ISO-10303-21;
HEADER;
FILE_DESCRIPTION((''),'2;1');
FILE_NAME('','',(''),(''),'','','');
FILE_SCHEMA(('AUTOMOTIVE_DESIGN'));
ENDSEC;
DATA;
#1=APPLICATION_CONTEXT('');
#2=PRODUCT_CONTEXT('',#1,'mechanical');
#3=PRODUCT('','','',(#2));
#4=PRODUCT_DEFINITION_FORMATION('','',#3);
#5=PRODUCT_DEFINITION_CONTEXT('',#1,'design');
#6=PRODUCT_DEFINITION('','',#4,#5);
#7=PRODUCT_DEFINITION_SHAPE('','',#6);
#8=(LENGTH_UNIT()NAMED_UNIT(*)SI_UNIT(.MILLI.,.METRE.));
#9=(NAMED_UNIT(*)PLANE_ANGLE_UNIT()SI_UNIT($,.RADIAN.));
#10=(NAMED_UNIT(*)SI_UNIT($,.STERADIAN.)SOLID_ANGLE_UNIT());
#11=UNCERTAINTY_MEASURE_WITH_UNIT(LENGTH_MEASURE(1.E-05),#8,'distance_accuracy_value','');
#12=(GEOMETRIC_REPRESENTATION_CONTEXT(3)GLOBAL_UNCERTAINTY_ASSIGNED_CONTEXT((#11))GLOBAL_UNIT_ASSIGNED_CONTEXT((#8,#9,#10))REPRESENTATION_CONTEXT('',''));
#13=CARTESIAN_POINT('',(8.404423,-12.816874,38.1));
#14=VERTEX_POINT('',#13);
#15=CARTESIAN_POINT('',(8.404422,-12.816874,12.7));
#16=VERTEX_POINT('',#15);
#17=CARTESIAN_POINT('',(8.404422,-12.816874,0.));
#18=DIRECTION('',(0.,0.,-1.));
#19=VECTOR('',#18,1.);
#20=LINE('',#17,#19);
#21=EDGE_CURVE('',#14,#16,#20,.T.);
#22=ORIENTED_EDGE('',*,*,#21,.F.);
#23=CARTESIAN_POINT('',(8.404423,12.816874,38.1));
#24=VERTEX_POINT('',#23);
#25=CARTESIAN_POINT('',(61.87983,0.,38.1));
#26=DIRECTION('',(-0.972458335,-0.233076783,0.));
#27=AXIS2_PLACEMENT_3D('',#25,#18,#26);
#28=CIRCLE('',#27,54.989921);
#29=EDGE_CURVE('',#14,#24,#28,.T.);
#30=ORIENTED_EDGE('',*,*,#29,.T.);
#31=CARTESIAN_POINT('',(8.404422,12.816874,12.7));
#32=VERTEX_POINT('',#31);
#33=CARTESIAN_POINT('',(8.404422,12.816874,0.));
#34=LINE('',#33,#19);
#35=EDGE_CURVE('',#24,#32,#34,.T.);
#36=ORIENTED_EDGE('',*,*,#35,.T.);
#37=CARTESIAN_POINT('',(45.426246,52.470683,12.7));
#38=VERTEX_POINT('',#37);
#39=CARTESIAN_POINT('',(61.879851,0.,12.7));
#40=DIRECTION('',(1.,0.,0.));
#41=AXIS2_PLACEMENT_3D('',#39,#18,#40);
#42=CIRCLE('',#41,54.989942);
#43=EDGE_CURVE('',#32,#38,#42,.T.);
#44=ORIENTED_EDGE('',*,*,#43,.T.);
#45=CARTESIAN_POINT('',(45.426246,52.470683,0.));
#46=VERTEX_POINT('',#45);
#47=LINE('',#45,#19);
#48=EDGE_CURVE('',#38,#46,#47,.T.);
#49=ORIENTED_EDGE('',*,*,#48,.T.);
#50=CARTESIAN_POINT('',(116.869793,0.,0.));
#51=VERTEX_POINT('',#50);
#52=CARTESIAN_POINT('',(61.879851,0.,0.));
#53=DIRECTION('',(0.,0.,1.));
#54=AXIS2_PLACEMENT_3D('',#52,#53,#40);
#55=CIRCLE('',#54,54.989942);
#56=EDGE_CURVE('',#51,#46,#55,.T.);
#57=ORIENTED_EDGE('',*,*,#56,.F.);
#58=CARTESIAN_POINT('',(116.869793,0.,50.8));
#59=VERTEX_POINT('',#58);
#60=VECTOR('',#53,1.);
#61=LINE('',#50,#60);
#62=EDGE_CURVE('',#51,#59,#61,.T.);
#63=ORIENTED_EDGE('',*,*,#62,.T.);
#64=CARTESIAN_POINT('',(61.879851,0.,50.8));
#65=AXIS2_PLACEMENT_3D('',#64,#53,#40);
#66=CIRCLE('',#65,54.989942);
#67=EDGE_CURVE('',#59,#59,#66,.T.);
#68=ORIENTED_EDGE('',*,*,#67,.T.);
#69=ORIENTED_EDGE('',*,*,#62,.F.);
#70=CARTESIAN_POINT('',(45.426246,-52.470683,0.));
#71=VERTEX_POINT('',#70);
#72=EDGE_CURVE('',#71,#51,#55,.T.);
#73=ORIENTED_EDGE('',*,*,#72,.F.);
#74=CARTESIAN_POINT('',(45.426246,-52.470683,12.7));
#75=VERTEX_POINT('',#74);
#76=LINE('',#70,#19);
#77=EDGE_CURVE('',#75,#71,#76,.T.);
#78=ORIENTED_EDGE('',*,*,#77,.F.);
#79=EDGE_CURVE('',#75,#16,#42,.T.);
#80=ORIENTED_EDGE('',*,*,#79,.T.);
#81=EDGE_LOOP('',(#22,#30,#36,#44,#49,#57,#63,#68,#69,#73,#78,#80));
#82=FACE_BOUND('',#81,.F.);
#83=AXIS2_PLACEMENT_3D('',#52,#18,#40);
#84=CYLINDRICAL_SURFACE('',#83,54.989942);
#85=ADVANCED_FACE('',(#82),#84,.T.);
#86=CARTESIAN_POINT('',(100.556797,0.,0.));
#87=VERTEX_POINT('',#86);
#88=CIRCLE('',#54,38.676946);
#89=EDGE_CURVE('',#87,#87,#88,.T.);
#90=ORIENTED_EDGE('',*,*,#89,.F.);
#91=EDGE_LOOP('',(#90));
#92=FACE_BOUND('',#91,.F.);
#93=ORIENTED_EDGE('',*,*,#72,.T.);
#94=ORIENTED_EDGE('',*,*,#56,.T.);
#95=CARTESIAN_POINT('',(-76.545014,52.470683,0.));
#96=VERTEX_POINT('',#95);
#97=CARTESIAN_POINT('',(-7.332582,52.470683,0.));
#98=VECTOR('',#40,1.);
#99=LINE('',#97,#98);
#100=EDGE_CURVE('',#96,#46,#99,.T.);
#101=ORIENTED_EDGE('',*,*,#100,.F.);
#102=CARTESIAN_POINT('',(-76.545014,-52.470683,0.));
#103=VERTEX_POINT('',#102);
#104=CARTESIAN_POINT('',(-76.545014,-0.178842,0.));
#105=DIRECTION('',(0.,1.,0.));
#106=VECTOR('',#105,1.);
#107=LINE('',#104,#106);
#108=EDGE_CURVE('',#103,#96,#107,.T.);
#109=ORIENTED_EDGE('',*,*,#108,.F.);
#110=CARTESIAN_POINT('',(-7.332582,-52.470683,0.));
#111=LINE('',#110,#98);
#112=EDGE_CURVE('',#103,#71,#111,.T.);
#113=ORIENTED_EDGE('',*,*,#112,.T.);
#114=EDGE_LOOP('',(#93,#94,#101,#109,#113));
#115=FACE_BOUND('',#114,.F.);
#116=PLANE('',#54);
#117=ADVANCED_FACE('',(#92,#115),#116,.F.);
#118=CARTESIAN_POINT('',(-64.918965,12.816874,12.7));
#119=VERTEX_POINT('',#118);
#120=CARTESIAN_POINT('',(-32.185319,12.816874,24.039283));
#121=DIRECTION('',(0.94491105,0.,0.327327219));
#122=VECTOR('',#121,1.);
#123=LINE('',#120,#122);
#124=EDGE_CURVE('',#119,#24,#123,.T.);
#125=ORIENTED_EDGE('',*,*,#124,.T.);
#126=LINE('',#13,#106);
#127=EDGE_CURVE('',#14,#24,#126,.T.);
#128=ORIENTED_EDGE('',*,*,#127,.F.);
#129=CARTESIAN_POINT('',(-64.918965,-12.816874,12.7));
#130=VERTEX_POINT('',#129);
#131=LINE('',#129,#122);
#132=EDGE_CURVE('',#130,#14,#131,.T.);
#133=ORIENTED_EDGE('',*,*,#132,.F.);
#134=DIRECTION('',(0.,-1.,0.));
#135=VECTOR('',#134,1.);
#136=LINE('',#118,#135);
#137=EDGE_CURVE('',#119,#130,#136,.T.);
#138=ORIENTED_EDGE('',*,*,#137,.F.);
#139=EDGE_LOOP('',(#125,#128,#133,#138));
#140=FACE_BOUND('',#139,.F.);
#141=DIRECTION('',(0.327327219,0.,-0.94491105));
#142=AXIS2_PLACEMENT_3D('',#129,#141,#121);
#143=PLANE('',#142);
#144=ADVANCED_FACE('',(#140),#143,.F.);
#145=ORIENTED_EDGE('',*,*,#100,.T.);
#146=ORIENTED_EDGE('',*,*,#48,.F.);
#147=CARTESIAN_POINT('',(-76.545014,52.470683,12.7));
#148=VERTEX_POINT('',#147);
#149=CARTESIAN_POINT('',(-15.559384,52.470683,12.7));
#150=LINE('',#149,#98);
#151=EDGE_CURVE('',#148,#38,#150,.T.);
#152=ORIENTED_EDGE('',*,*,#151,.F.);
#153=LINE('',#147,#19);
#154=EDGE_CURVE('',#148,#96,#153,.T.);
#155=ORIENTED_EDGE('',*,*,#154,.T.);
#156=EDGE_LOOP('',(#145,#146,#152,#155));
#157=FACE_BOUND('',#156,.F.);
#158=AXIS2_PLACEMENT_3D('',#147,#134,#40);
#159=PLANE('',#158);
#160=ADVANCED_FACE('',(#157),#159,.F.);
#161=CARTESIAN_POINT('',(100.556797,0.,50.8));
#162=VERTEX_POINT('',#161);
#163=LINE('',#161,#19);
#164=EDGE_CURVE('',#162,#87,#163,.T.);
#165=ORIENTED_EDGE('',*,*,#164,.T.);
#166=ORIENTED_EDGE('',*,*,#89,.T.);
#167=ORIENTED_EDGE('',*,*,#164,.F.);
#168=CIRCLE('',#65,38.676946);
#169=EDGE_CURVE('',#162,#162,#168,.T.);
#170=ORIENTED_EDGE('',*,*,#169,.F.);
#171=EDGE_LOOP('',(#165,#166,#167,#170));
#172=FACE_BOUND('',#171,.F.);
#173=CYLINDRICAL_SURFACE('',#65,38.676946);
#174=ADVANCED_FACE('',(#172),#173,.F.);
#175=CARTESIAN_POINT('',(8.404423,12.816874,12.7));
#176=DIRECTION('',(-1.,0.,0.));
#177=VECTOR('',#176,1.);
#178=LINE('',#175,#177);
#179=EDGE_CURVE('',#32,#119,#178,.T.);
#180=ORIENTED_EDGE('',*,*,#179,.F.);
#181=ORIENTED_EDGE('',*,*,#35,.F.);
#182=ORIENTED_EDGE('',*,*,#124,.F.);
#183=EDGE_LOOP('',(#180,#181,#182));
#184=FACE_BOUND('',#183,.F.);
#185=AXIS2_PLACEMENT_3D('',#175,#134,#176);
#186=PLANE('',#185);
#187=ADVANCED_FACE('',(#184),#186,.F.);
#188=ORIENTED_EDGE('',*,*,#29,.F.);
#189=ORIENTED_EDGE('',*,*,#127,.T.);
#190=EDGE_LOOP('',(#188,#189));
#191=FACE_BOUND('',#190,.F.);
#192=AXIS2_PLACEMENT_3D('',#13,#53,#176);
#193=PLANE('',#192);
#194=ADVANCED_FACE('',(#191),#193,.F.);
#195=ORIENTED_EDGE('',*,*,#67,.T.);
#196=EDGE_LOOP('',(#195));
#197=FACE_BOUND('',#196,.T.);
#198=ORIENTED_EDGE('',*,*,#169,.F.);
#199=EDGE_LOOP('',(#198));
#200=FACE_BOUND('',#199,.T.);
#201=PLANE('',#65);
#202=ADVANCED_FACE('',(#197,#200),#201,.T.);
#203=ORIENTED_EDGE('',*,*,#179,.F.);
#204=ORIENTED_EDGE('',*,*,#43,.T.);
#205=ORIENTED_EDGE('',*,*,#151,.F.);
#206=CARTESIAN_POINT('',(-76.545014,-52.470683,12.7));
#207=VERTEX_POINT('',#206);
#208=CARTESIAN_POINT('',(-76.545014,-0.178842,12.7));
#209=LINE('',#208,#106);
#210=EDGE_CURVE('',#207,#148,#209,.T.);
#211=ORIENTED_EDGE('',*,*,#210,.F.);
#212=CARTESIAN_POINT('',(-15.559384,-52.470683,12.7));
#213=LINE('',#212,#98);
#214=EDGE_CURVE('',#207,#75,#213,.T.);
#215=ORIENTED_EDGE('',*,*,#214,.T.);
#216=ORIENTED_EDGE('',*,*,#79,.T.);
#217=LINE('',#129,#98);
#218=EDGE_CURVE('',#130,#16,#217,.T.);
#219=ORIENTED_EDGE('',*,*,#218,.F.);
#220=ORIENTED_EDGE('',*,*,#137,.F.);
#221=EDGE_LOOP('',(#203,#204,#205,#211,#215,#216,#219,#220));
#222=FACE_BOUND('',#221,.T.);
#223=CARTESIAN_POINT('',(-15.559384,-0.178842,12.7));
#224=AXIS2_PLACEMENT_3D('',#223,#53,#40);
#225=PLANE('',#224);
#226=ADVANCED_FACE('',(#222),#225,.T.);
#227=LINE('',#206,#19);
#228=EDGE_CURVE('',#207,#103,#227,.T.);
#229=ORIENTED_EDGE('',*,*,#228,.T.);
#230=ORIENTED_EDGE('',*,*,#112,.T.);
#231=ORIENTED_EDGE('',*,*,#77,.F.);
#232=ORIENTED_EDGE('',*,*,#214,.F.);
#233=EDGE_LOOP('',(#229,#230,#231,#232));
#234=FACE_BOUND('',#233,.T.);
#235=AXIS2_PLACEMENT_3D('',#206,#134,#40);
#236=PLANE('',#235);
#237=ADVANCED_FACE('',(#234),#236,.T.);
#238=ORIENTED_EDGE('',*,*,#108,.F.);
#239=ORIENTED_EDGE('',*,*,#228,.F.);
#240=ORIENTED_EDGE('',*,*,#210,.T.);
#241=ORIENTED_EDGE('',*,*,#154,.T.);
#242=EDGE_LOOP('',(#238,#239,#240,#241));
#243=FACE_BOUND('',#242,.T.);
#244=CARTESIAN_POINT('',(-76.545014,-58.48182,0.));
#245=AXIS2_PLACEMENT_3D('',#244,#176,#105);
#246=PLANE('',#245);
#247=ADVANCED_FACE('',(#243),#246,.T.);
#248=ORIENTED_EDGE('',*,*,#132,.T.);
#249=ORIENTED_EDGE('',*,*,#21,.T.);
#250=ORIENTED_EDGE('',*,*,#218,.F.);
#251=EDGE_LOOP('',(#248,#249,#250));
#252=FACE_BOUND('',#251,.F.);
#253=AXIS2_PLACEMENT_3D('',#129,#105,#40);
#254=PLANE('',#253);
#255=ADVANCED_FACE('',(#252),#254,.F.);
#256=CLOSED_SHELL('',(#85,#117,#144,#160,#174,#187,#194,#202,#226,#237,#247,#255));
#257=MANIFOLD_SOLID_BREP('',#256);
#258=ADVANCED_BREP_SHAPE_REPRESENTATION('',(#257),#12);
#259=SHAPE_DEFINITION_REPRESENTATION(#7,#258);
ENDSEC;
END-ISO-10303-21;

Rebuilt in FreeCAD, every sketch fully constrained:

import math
import FreeCAD as App
import Part
import Sketcher
Q = App.Units.Quantity


def add_polygon(sketch, points):
    """Adds a closed chain of lines whose ends are joined by coincident constraints."""
    first, n = sketch.GeometryCount, len(points)
    for a, b in zip(points, points[1:] + points[:1]):
        sketch.addGeometry(Part.LineSegment(App.Vector(*a, 0), App.Vector(*b, 0)), False)
    for i in range(n):
        sketch.addConstraint(Sketcher.Constraint("Coincident", first + i, 2, first + (i + 1) % n, 1))

doc = App.newDocument("Part")
body = doc.addObject("PartDesign::Body", "Body")

# Sketch on XY plane
sketch1 = body.newObject("Sketcher::SketchObject", "Sketch")
sketch1.AttachmentSupport = (doc.getObject("XY_Plane"), [""])
sketch1.MapMode = "FlatFace"
add_polygon(sketch1, [(-77, 58), (-77, -58), (45, -58), (45, 58)])  # lines 0-3
sketch1.addConstraint(Sketcher.Constraint("Vertical", 0))
sketch1.addConstraint(Sketcher.Constraint("Horizontal", 1))
sketch1.addConstraint(Sketcher.Constraint("Vertical", 2))
sketch1.addConstraint(Sketcher.Constraint("Horizontal", 3))
sketch1.addConstraint(Sketcher.Constraint("DistanceX", 1, 1, 1, 2, 121.971261))
sketch1.addConstraint(Sketcher.Constraint("DistanceY", 0, 2, 0, 1, 116.605956))
sketch1.addConstraint(Sketcher.Constraint("DistanceY", 0, 2, -1, 1, 58.48182))
sketch1.addConstraint(Sketcher.Constraint("DistanceX", 0, 2, -1, 1, 76.545014))
pad1 = body.newObject("PartDesign::Pad", "Pad")
pad1.Profile = sketch1
pad1.Length = Q("0.5 in")

# Sketch on XY plane
sketch2 = body.newObject("Sketcher::SketchObject", "Sketch001")
sketch2.AttachmentSupport = (doc.getObject("XY_Plane"), [""])
sketch2.MapMode = "FlatFace"
sketch2.addGeometry(Part.Circle(App.Vector(62, 0, 0), App.Vector(0, 0, 1), 55), False)
sketch2.addConstraint(Sketcher.Constraint("PointOnObject", 0, 3, -1))
sketch2.addConstraint(Sketcher.Constraint("Diameter", 0, 109.979884))
sketch2.addConstraint(Sketcher.Constraint("DistanceX", -1, 1, 0, 3, 61.879851))
pad2 = body.newObject("PartDesign::Pad", "Pad001")
pad2.Profile = sketch2
pad2.Length = Q("2 in")

# Sketch on XY plane
sketch3 = body.newObject("Sketcher::SketchObject", "Sketch002")
sketch3.AttachmentSupport = (doc.getObject("XY_Plane"), [""])
sketch3.MapMode = "FlatFace"
sketch3.AttachmentOffset = App.Placement(App.Vector(0, 0, 2 * 25.4), App.Rotation())
sketch3.addGeometry(Part.Circle(App.Vector(62, 0, 0), App.Vector(0, 0, 1), 39), False)
sketch3.addConstraint(Sketcher.Constraint("PointOnObject", 0, 3, -1))
sketch3.addConstraint(Sketcher.Constraint("Diameter", 0, 77.353892))
sketch3.addConstraint(Sketcher.Constraint("DistanceX", -1, 1, 0, 3, 61.879851))
pocket1 = body.newObject("PartDesign::Pocket", "Pocket")
pocket1.Profile = sketch3
pocket1.Length = Q("4 in")

# Sketch on XY plane
sketch4 = body.newObject("Sketcher::SketchObject", "Sketch003")
sketch4.AttachmentSupport = (doc.getObject("XY_Plane"), [""])
sketch4.MapMode = "FlatFace"
sketch4.AttachmentOffset = App.Placement(App.Vector(0, 0, 0.5 * 25.4), App.Rotation())
sketch4.addGeometry(Part.ArcOfCircle(Part.Circle(App.Vector(62, 0, 0), App.Vector(0, 0, 1), 55), math.radians(167), math.radians(193)), False)
sketch4.addGeometry(Part.LineSegment(App.Vector(8, 13, 0), App.Vector(-65, 13, 0)), False)
sketch4.addGeometry(Part.LineSegment(App.Vector(-65, 13, 0), App.Vector(-65, -13, 0)), False)
sketch4.addGeometry(Part.LineSegment(App.Vector(-65, -13, 0), App.Vector(8, -13, 0)), False)
sketch4.addConstraint(Sketcher.Constraint("Coincident", 0, 1, 1, 1))
sketch4.addConstraint(Sketcher.Constraint("Coincident", 1, 2, 2, 1))
sketch4.addConstraint(Sketcher.Constraint("Coincident", 2, 2, 3, 1))
sketch4.addConstraint(Sketcher.Constraint("Coincident", 3, 2, 0, 2))
sketch4.addConstraint(Sketcher.Constraint("Horizontal", 1))
sketch4.addConstraint(Sketcher.Constraint("Vertical", 2))
sketch4.addConstraint(Sketcher.Constraint("Horizontal", 3))
sketch4.addConstraint(Sketcher.Constraint("Symmetric", 0, 1, 3, 2, -1))
sketch4.addConstraint(Sketcher.Constraint("Radius", 0, 54.989921))
sketch4.addConstraint(Sketcher.Constraint("DistanceY", 2, 2, 2, 1, 25.633748))
sketch4.addConstraint(Sketcher.Constraint("DistanceX", 1, 2, 1, 1, 73.323388))
sketch4.addConstraint(Sketcher.Constraint("DistanceX", -1, 1, 0, 3, 61.87983))
pad3 = body.newObject("PartDesign::Pad", "Pad002")
pad3.Profile = sketch4
pad3.Length = Q("1 in")

# Sketch on XZ plane
sketch5 = body.newObject("Sketcher::SketchObject", "Sketch004")
sketch5.AttachmentSupport = (doc.getObject("XZ_Plane"), [""])
sketch5.MapMode = "FlatFace"
sketch5.AttachmentOffset = App.Placement(App.Vector(0, 0, 12.816874), App.Rotation())
add_polygon(sketch5, [(-65, 13), (8, 38), (-65, 38)])  # lines 0-2
sketch5.addConstraint(Sketcher.Constraint("Horizontal", 1))
sketch5.addConstraint(Sketcher.Constraint("Vertical", 2))
sketch5.addConstraint(Sketcher.Constraint("DistanceY", 2, 2, 2, 1, Q("1 in")))
sketch5.addConstraint(Sketcher.Constraint("DistanceY", -1, 1, 0, 2, Q("1.5 in")))
sketch5.addConstraint(Sketcher.Constraint("Distance", 0, 77.598191))
sketch5.addConstraint(Sketcher.Constraint("DistanceX", -1, 1, 0, 2, 8.404423))
pocket2 = body.newObject("PartDesign::Pocket", "Pocket001")
pocket2.Profile = sketch5
pocket2.Length = Q("2 in")

# Sketch on XY plane
sketch6 = body.newObject("Sketcher::SketchObject", "Sketch005")
sketch6.AttachmentSupport = (doc.getObject("XY_Plane"), [""])
sketch6.MapMode = "FlatFace"
sketch6.AttachmentOffset = App.Placement(App.Vector(0, 0, 0.5 * 25.4), App.Rotation())
add_polygon(sketch6, [(-77, -52), (-77, -58), (45, -58), (45, -52)])  # lines 0-3
sketch6.addConstraint(Sketcher.Constraint("Vertical", 0))
sketch6.addConstraint(Sketcher.Constraint("Horizontal", 1))
sketch6.addConstraint(Sketcher.Constraint("Vertical", 2))
sketch6.addConstraint(Sketcher.Constraint("Horizontal", 3))
sketch6.addConstraint(Sketcher.Constraint("DistanceX", 1, 1, 1, 2, 121.971261))
sketch6.addConstraint(Sketcher.Constraint("DistanceY", 0, 2, 0, 1, 6.011137))
sketch6.addConstraint(Sketcher.Constraint("DistanceY", 0, 2, -1, 1, 58.48182))
sketch6.addConstraint(Sketcher.Constraint("DistanceX", 0, 2, -1, 1, 76.545014))
pocket3 = body.newObject("PartDesign::Pocket", "Pocket002")
pocket3.Profile = sketch6
pocket3.Length = Q("1 in")

# Sketch on XY plane
sketch7 = body.newObject("Sketcher::SketchObject", "Sketch006")
sketch7.AttachmentSupport = (doc.getObject("XY_Plane"), [""])
sketch7.MapMode = "FlatFace"
sketch7.AttachmentOffset = App.Placement(App.Vector(0, 0, 0.5 * 25.4), App.Rotation())
add_polygon(sketch7, [(-77, 58), (-77, 52), (45, 52), (45, 58)])  # lines 0-3
sketch7.addConstraint(Sketcher.Constraint("Vertical", 0))
sketch7.addConstraint(Sketcher.Constraint("Horizontal", 1))
sketch7.addConstraint(Sketcher.Constraint("Vertical", 2))
sketch7.addConstraint(Sketcher.Constraint("Horizontal", 3))
sketch7.addConstraint(Sketcher.Constraint("DistanceX", 1, 1, 1, 2, 121.971261))
sketch7.addConstraint(Sketcher.Constraint("DistanceY", 0, 2, 0, 1, 5.653453))
sketch7.addConstraint(Sketcher.Constraint("DistanceX", 0, 2, -1, 1, 76.545014))
sketch7.addConstraint(Sketcher.Constraint("DistanceY", -1, 1, 0, 2, 52.470683))
pocket4 = body.newObject("PartDesign::Pocket", "Pocket003")
pocket4.Profile = sketch7
pocket4.Length = Q("1 in")

doc.recompute()
